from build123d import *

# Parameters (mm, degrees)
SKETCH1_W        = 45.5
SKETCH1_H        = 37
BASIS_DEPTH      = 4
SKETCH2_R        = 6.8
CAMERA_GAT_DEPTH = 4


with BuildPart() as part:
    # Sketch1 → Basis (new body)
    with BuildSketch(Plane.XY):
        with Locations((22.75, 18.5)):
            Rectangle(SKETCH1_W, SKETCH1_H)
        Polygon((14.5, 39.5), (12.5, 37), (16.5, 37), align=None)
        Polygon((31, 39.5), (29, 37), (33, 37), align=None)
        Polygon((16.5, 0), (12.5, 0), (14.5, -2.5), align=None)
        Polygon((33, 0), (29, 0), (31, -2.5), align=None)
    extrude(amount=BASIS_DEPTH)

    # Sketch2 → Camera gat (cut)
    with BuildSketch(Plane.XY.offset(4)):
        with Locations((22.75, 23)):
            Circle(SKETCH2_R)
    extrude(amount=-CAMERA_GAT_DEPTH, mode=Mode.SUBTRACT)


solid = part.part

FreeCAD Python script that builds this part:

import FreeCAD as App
import Part
import Sketcher
from FreeCAD import Vector
Q = App.Units.Quantity

doc = App.newDocument("Part")
body = doc.addObject("PartDesign::Body", "Body")

# Sketch on XY plane
sketch1 = body.newObject("Sketcher::SketchObject", "Sketch")
sketch1.AttachmentSupport = (doc.getObject("XY_Plane"), [""])
sketch1.MapMode = "FlatFace"
sketch1.addGeometry([
    Part.LineSegment(Vector(0, 37, 0), Vector(0, 0, 0)),  # 0
    Part.LineSegment(Vector(0, 0, 0), Vector(12.5, 0, 0)),  # 1
    Part.LineSegment(Vector(12.5, 0, 0), Vector(14.5, -2.5, 0)),  # 2
    Part.LineSegment(Vector(14.5, -2.5, 0), Vector(16.5, 0, 0)),  # 3
    Part.LineSegment(Vector(16.5, 0, 0), Vector(29, 0, 0)),  # 4
    Part.LineSegment(Vector(29, 0, 0), Vector(31, -2.5, 0)),  # 5
    Part.LineSegment(Vector(31, -2.5, 0), Vector(33, 0, 0)),  # 6
    Part.LineSegment(Vector(33, 0, 0), Vector(45.5, 0, 0)),  # 7
    Part.LineSegment(Vector(45.5, 0, 0), Vector(45.5, 37, 0)),  # 8
    Part.LineSegment(Vector(45.5, 37, 0), Vector(33, 37, 0)),  # 9
    Part.LineSegment(Vector(33, 37, 0), Vector(31, 39.5, 0)),  # 10
    Part.LineSegment(Vector(31, 39.5, 0), Vector(29, 37, 0)),  # 11
    Part.LineSegment(Vector(29, 37, 0), Vector(16.5, 37, 0)),  # 12
    Part.LineSegment(Vector(16.5, 37, 0), Vector(14.5, 39.5, 0)),  # 13
    Part.LineSegment(Vector(14.5, 39.5, 0), Vector(12.5, 37, 0)),  # 14
    Part.LineSegment(Vector(12.5, 37, 0), Vector(0, 37, 0)),  # 15
], False)
sketch1.addConstraint([
    Sketcher.Constraint("Coincident", 0, 2, 1, 1),
    Sketcher.Constraint("Coincident", 1, 2, 2, 1),
    Sketcher.Constraint("Coincident", 2, 2, 3, 1),
    Sketcher.Constraint("Coincident", 3, 2, 4, 1),
    Sketcher.Constraint("Coincident", 4, 2, 5, 1),
    Sketcher.Constraint("Coincident", 5, 2, 6, 1),
    Sketcher.Constraint("Coincident", 6, 2, 7, 1),
    Sketcher.Constraint("Coincident", 7, 2, 8, 1),
    Sketcher.Constraint("Coincident", 8, 2, 9, 1),
    Sketcher.Constraint("Coincident", 9, 2, 10, 1),
    Sketcher.Constraint("Coincident", 10, 2, 11, 1),
    Sketcher.Constraint("Coincident", 11, 2, 12, 1),
    Sketcher.Constraint("Coincident", 12, 2, 13, 1),
    Sketcher.Constraint("Coincident", 13, 2, 14, 1),
    Sketcher.Constraint("Coincident", 14, 2, 15, 1),
    Sketcher.Constraint("Coincident", 15, 2, 0, 1),
    Sketcher.Constraint("Vertical", 0),
    Sketcher.Constraint("Horizontal", 1),
    Sketcher.Constraint("Horizontal", 4),
    Sketcher.Constraint("Horizontal", 7),
    Sketcher.Constraint("Vertical", 8),
    Sketcher.Constraint("Horizontal", 9),
    Sketcher.Constraint("Horizontal", 12),
    Sketcher.Constraint("Horizontal", 15),
    Sketcher.Constraint("Coincident", 0, 2, -1, 1),
    Sketcher.Constraint("PointOnObject", 3, 2, -1),
    Sketcher.Constraint("PointOnObject", 6, 2, -1),
    Sketcher.Constraint("Parallel", 2, 5),
    Sketcher.Constraint("Parallel", 3, 6),
    Sketcher.Constraint("Parallel", 5, 10),
    Sketcher.Constraint("Parallel", 6, 11),
    Sketcher.Constraint("Parallel", 10, 13),
    Sketcher.Constraint("Parallel", 11, 14),
    Sketcher.Constraint("Horizontal", 2, 2, 5, 2),
    Sketcher.Constraint("Horizontal", 9, 2, 11, 2),
    Sketcher.Constraint("Horizontal", 10, 2, 13, 2),
    Sketcher.Constraint("Horizontal", 12, 2, 14, 2),
    Sketcher.Constraint("Vertical", 6, 2, 9, 2),
    Sketcher.Constraint("Vertical", 5, 2, 10, 2),
    Sketcher.Constraint("Vertical", 4, 2, 11, 2),
    Sketcher.Constraint("Vertical", 3, 2, 12, 2),
    Sketcher.Constraint("Equal", 1, 4),
    Sketcher.Constraint("Equal", 4, 7),
    Sketcher.Constraint("DistanceY", 0, 2, 0, 1, Q("37 mm")),
    Sketcher.Constraint("DistanceX", 1, 1, 1, 2, Q("12.5 mm")),
    Sketcher.Constraint("DistanceX", -1, 1, 4, 2, Q("29 mm")),
    Sketcher.Constraint("DistanceY", 5, 2, 10, 2, Q("42 mm")),
])
pad1 = body.newObject("PartDesign::Pad", "Pad")
pad1.Profile = sketch1
pad1.Length = 4

# Sketch on XY plane
sketch2 = body.newObject("Sketcher::SketchObject", "Sketch001")
sketch2.AttachmentSupport = (doc.getObject("XY_Plane"), [""])
sketch2.MapMode = "FlatFace"
sketch2.AttachmentOffset = App.Placement(Vector(0, 0, 4), App.Rotation())
sketch2.addGeometry(Part.Circle(Vector(22.75, 23, 0), Vector(0, 0, 1), 6.8), False)
sketch2.addConstraint([
    Sketcher.Constraint("Diameter", 0, Q("13.6 mm")),
    Sketcher.Constraint("DistanceY", -1, 1, 0, 3, Q("23 mm")),
    Sketcher.Constraint("DistanceX", -1, 1, 0, 3, Q("22.75 mm")),
])
pocket1 = body.newObject("PartDesign::Pocket", "Pocket")
pocket1.Profile = sketch2
pocket1.Length = 4

doc.recompute()
